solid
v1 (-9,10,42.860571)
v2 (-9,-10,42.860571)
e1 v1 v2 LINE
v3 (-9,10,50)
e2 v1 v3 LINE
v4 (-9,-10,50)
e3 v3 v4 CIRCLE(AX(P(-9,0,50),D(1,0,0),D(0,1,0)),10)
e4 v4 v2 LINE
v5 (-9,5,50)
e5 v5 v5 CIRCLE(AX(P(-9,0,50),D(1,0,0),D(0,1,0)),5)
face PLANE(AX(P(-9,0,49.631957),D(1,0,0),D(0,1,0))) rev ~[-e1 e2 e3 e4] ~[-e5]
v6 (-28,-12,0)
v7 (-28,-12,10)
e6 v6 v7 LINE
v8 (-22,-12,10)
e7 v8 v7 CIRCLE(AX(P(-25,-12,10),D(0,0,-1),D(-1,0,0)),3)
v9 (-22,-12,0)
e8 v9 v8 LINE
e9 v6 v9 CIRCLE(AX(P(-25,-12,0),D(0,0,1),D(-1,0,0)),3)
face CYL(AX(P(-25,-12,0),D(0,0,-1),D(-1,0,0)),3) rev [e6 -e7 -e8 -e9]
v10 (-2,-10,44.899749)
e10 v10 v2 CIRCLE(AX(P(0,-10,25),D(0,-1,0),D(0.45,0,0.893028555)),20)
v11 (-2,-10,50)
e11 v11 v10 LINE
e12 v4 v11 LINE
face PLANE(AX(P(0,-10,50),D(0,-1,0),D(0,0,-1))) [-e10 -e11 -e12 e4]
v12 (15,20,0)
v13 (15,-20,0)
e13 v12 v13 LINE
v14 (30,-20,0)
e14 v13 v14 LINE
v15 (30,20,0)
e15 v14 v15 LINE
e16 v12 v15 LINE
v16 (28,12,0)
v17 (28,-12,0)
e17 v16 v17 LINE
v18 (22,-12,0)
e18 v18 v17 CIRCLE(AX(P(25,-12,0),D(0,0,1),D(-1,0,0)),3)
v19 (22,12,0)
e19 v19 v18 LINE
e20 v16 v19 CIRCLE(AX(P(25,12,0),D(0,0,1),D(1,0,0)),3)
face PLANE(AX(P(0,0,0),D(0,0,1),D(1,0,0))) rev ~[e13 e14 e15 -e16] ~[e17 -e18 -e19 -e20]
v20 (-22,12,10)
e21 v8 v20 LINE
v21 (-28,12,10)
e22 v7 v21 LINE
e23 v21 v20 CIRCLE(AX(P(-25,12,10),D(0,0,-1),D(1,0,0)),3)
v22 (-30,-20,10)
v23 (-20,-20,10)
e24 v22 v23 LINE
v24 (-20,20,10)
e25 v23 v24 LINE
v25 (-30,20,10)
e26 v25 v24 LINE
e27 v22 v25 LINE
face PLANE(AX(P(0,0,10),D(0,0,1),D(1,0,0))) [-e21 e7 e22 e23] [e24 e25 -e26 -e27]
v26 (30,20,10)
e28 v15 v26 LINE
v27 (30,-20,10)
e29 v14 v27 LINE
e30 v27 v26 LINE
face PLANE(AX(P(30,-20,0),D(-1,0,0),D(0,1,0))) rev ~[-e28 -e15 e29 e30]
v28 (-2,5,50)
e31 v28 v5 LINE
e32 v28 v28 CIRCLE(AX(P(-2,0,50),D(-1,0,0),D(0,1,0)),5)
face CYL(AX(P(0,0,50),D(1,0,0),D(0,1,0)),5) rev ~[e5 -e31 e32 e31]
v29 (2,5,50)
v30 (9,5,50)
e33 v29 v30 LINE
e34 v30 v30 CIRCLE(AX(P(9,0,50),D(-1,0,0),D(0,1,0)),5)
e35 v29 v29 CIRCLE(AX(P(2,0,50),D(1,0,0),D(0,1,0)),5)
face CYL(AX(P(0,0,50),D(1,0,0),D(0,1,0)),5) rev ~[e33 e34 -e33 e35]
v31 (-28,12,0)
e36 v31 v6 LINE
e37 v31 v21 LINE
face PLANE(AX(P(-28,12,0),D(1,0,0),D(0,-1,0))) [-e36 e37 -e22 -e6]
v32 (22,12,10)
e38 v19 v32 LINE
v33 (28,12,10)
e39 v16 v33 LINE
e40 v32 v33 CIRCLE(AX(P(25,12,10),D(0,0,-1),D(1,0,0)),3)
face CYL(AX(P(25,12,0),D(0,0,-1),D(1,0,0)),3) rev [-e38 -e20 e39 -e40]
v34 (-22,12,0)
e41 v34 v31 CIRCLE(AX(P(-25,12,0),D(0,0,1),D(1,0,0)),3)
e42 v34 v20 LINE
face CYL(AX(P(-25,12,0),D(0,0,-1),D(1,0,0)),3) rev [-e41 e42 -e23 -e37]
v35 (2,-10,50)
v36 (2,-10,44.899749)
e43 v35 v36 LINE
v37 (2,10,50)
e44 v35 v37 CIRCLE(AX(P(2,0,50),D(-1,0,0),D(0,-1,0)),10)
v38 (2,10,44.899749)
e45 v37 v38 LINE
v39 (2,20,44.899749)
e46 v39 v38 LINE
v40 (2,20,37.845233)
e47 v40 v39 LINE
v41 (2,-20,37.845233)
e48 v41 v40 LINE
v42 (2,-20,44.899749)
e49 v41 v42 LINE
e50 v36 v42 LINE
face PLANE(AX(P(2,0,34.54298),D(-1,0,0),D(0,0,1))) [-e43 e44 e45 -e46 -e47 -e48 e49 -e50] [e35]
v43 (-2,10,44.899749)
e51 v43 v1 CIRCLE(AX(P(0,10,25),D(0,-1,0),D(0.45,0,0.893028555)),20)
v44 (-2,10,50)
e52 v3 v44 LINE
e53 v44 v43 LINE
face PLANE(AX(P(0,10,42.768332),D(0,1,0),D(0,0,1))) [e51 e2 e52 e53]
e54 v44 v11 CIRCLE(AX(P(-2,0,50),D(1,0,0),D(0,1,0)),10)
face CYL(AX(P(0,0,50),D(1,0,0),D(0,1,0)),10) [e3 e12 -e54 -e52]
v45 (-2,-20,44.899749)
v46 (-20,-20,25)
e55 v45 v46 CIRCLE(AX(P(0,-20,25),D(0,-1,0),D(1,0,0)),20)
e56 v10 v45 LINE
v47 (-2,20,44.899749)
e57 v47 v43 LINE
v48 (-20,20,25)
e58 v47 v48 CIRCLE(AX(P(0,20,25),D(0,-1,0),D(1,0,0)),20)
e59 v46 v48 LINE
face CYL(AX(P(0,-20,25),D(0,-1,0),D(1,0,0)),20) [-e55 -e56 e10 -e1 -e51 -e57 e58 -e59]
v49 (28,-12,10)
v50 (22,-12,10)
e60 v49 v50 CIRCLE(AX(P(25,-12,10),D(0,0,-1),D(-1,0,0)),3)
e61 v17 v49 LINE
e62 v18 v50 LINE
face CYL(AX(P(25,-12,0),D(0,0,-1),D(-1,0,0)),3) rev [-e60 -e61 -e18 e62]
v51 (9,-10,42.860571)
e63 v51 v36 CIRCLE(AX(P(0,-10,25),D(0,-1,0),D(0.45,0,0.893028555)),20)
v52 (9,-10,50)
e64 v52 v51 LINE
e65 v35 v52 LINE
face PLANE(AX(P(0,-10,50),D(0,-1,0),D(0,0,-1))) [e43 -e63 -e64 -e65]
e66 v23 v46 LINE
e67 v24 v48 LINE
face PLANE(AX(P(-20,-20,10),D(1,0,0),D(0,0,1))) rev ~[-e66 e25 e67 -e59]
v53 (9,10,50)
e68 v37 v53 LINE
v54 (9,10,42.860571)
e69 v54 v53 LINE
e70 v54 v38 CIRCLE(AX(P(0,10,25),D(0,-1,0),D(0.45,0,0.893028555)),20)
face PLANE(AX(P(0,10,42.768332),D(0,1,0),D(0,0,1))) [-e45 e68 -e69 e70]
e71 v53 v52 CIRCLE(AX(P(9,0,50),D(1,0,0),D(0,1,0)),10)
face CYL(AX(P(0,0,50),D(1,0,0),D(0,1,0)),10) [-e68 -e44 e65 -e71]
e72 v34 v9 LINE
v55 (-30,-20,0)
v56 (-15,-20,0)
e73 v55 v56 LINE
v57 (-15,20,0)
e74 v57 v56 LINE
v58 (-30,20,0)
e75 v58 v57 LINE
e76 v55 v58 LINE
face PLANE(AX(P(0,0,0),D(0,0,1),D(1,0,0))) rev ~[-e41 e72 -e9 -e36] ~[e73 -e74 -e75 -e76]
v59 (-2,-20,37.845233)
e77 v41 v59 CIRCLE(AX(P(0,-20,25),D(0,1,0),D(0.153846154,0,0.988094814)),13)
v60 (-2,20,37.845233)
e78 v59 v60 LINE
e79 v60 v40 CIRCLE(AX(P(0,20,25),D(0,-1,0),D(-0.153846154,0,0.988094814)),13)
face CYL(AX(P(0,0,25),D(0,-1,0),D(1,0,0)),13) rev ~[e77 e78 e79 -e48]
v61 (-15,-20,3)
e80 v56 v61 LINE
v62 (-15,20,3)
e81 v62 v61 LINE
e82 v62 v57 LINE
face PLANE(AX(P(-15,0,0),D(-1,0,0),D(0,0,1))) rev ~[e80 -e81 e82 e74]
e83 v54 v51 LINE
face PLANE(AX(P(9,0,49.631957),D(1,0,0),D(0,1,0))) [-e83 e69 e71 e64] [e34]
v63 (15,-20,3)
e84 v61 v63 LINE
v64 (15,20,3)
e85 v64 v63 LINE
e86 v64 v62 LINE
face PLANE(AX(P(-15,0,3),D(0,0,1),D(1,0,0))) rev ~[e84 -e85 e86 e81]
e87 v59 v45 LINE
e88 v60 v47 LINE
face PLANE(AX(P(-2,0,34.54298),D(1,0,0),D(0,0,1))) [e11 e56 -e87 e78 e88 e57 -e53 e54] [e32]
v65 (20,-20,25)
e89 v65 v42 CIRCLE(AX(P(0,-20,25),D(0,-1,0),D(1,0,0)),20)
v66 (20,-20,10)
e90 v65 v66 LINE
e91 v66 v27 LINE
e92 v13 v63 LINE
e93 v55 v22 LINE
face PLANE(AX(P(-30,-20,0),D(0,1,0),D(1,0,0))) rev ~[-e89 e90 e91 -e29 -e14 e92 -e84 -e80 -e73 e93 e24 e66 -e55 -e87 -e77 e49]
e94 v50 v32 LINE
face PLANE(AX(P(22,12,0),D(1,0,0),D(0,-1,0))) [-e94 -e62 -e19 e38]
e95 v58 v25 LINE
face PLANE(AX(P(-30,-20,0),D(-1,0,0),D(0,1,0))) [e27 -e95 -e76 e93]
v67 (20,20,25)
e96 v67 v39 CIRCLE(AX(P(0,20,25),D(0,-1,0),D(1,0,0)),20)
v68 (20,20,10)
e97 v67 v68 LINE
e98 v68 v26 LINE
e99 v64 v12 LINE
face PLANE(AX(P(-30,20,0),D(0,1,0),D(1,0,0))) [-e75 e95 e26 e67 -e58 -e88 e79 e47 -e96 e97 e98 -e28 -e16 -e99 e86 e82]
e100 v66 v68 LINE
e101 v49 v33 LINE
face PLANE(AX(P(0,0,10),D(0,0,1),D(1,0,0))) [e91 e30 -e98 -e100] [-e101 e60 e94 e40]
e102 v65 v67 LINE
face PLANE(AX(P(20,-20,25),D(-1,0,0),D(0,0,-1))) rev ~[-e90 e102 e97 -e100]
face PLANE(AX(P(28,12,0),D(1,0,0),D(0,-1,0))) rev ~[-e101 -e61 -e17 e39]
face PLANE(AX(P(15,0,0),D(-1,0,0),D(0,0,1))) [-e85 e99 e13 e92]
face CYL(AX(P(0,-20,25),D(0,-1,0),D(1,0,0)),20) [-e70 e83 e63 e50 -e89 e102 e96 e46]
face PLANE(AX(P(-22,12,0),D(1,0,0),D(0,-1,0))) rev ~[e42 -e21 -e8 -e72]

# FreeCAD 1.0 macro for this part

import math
import FreeCAD as App
import Part
import Sketcher

V = App.Vector

doc = App.newDocument("Part")
body = doc.addObject("PartDesign::Body", "Body")

sketch1 = doc.addObject("Sketcher::SketchObject", "Sketch")
body.addObject(sketch1)
sketch1.AttachmentSupport = (doc.XY_Plane, [""])
sketch1.MapMode = "FlatFace"
sketch1.addGeometry([
    Part.LineSegment(V(-30, 20, 0), V(-30, -20, 0)),
    Part.LineSegment(V(-30, -20, 0), V(30, -20, 0)),
    Part.LineSegment(V(30, -20, 0), V(30, 20, 0)),
    Part.LineSegment(V(30, 20, 0), V(-30, 20, 0)),
], False)
sketch1.addConstraint([
    Sketcher.Constraint("Coincident", 0, 2, 1, 1),
    Sketcher.Constraint("Coincident", 1, 2, 2, 1),
    Sketcher.Constraint("Coincident", 2, 2, 3, 1),
    Sketcher.Constraint("Coincident", 3, 2, 0, 1),
    Sketcher.Constraint("Vertical", 0),
    Sketcher.Constraint("Horizontal", 1),
    Sketcher.Constraint("Vertical", 2),
    Sketcher.Constraint("Horizontal", 3),
    Sketcher.Constraint("Symmetric", 0, 2, 2, 2, -1, 1),
    Sketcher.Constraint("DistanceX", 1, 1, 1, 2, 60.0),
    Sketcher.Constraint("DistanceY", 0, 2, 0, 1, 40.0),
])
pad1 = doc.addObject("PartDesign::Pad", "Pad")
body.addObject(pad1)
pad1.Profile = sketch1
pad1.Length = 10

sketch2 = doc.addObject("Sketcher::SketchObject", "Sketch001")
body.addObject(sketch2)
sketch2.AttachmentSupport = (doc.XZ_Plane, [""])
sketch2.MapMode = "FlatFace"
sketch2.AttachmentOffset = App.Placement(V(0, 0, 20), App.Rotation())
sketch2.addGeometry([
    Part.LineSegment(V(-20, 25, 0), V(-20, 10, 0)),
    Part.LineSegment(V(-20, 10, 0), V(20, 10, 0)),
    Part.LineSegment(V(20, 10, 0), V(20, 25, 0)),
    Part.ArcOfCircle(Part.Circle(V(0, 25, 0), V(0, 0, 1), 20), math.radians(0), math.radians(180)),
], False)
sketch2.addConstraint([
    Sketcher.Constraint("Coincident", 0, 2, 1, 1),
    Sketcher.Constraint("Coincident", 1, 2, 2, 1),
    Sketcher.Constraint("Tangent", 2, 2, 3, 1),
    Sketcher.Constraint("Tangent", 3, 2, 0, 1),
    Sketcher.Constraint("Vertical", 0),
    Sketcher.Constraint("Horizontal", 1),
    Sketcher.Constraint("Vertical", 2),
    Sketcher.Constraint("PointOnObject", 3, 3, -2),
    Sketcher.Constraint("Radius", 3, 20.0),
    Sketcher.Constraint("DistanceY", 0, 2, 0, 1, 15.0),
    Sketcher.Constraint("DistanceY", -1, 1, 3, 3, 25.0),
])
pad2 = doc.addObject("PartDesign::Pad", "Pad001")
body.addObject(pad2)
pad2.Profile = sketch2
pad2.Length = 40
pad2.Reversed = True

sketch3 = doc.addObject("Sketcher::SketchObject", "Sketch002")
body.addObject(sketch3)
sketch3.AttachmentSupport = (doc.YZ_Plane, [""])
sketch3.MapMode = "FlatFace"
sketch3.addGeometry([
    Part.LineSegment(V(10, 42.768332, 0), V(10, 50, 0)),
    Part.ArcOfCircle(Part.Circle(V(0, 50, 0), V(0, 0, 1), 10), math.radians(0), math.radians(180)),
    Part.LineSegment(V(-10, 50, 0), V(-10, 42.768332, 0)),
    Part.LineSegment(V(-10, 42.768332, 0), V(10, 42.768332, 0)),
], False)
sketch3.addConstraint([
    Sketcher.Constraint("Tangent", 0, 2, 1, 1),
    Sketcher.Constraint("Tangent", 1, 2, 2, 1),
    Sketcher.Constraint("Coincident", 2, 2, 3, 1),
    Sketcher.Constraint("Coincident", 3, 2, 0, 1),
    Sketcher.Constraint("Vertical", 0),
    Sketcher.Constraint("Vertical", 2),
    Sketcher.Constraint("Horizontal", 3),
    Sketcher.Constraint("PointOnObject", 1, 3, -2),
    Sketcher.Constraint("Radius", 1, 10.0),
    Sketcher.Constraint("DistanceY", -1, 1, 1, 3, 50.0),
    Sketcher.Constraint("DistanceY", 0, 1, 0, 2, 7.231668),
])
pad3 = doc.addObject("PartDesign::Pad", "Pad002")
body.addObject(pad3)
pad3.Profile = sketch3
pad3.Type = "TwoLengths"
pad3.Length = 9
pad3.Length2 = 9

sketch4 = doc.addObject("Sketcher::SketchObject", "Sketch003")
body.addObject(sketch4)
sketch4.AttachmentSupport = (doc.YZ_Plane, [""])
sketch4.MapMode = "FlatFace"
sketch4.addGeometry(Part.Circle(V(0, 50, 0), V(0, 0, 1), 5), False)
sketch4.addConstraint([
    Sketcher.Constraint("PointOnObject", 0, 3, -2),
    Sketcher.Constraint("Diameter", 0, 10.0),
    Sketcher.Constraint("DistanceY", -1, 1, 0, 3, 50.0),
])
pocket1 = doc.addObject("PartDesign::Pocket", "Pocket")
body.addObject(pocket1)
pocket1.Profile = sketch4
pocket1.Type = "ThroughAll"
pocket1.Midplane = True

sketch5 = doc.addObject("Sketcher::SketchObject", "Sketch004")
body.addObject(sketch5)
sketch5.AttachmentSupport = (doc.XZ_Plane, [""])
sketch5.MapMode = "FlatFace"
sketch5.addGeometry(Part.Circle(V(0, 25, 0), V(0, 0, 1), 13), False)
sketch5.addConstraint([
    Sketcher.Constraint("PointOnObject", 0, 3, -2),
    Sketcher.Constraint("Diameter", 0, 26.0),
    Sketcher.Constraint("DistanceY", -1, 1, 0, 3, 25.0),
])
pocket2 = doc.addObject("PartDesign::Pocket", "Pocket001")
body.addObject(pocket2)
pocket2.Profile = sketch5
pocket2.Type = "ThroughAll"
pocket2.Midplane = True

sketch6 = doc.addObject("Sketcher::SketchObject", "Sketch005")
body.addObject(sketch6)
sketch6.AttachmentSupport = (doc.XZ_Plane, [""])
sketch6.MapMode = "FlatFace"
sketch6.addGeometry([
    Part.LineSegment(V(-2, 64.147194, 0), V(-2, 34.54298, 0)),
    Part.LineSegment(V(-2, 34.54298, 0), V(2, 34.54298, 0)),
    Part.LineSegment(V(2, 34.54298, 0), V(2, 64.147194, 0)),
    Part.LineSegment(V(2, 64.147194, 0), V(-2, 64.147194, 0)),
], False)
sketch6.addConstraint([
    Sketcher.Constraint("Coincident", 0, 2, 1, 1),
    Sketcher.Constraint("Coincident", 1, 2, 2, 1),
    Sketcher.Constraint("Coincident", 2, 2, 3, 1),
    Sketcher.Constraint("Coincident", 3, 2, 0, 1),
    Sketcher.Constraint("Vertical", 0),
    Sketcher.Constraint("Horizontal", 1),
    Sketcher.Constraint("Vertical", 2),
    Sketcher.Constraint("Horizontal", 3),
    Sketcher.Constraint("DistanceX", 1, 1, 1, 2, 4.0),
    Sketcher.Constraint("DistanceX", 0, 2, -1, 1, 2.0),
    Sketcher.Constraint("DistanceY", 0, 2, 0, 1, 29.604214),
    Sketcher.Constraint("DistanceY", -1, 1, 0, 2, 34.54298),
])
pocket3 = doc.addObject("PartDesign::Pocket", "Pocket002")
body.addObject(pocket3)
pocket3.Profile = sketch6
pocket3.Type = "ThroughAll"
pocket3.Midplane = True

sketch7 = doc.addObject("Sketcher::SketchObject", "Sketch006")
body.addObject(sketch7)
sketch7.AttachmentSupport = (doc.XZ_Plane, [""])
sketch7.MapMode = "FlatFace"
sketch7.addGeometry([
    Part.LineSegment(V(-15, 3, 0), V(-15, 0, 0)),
    Part.LineSegment(V(-15, 0, 0), V(15, 0, 0)),
    Part.LineSegment(V(15, 0, 0), V(15, 3, 0)),
    Part.LineSegment(V(15, 3, 0), V(-15, 3, 0)),
], False)
sketch7.addConstraint([
    Sketcher.Constraint("Coincident", 0, 2, 1, 1),
    Sketcher.Constraint("Coincident", 1, 2, 2, 1),
    Sketcher.Constraint("Coincident", 2, 2, 3, 1),
    Sketcher.Constraint("Coincident", 3, 2, 0, 1),
    Sketcher.Constraint("Vertical", 0),
    Sketcher.Constraint("Horizontal", 1),
    Sketcher.Constraint("Vertical", 2),
    Sketcher.Constraint("Horizontal", 3),
    Sketcher.Constraint("Symmetric", 0, 2, 1, 2, -1, 1),
    Sketcher.Constraint("DistanceX", 1, 1, 1, 2, 30.0),
    Sketcher.Constraint("DistanceY", 0, 2, 0, 1, 3.0),
])
pocket4 = doc.addObject("PartDesign::Pocket", "Pocket003")
body.addObject(pocket4)
pocket4.Profile = sketch7
pocket4.Type = "ThroughAll"
pocket4.Midplane = True

sketch8 = doc.addObject("Sketcher::SketchObject", "Sketch007")
body.addObject(sketch8)
sketch8.AttachmentSupport = (doc.XY_Plane, [""])
sketch8.MapMode = "FlatFace"
sketch8.addGeometry([
    Part.ArcOfCircle(Part.Circle(V(-25, 12, 0), V(0, 0, 1), 3), math.radians(0), math.radians(180)),
    Part.LineSegment(V(-28, 12, 0), V(-28, -12, 0)),
    Part.ArcOfCircle(Part.Circle(V(-25, -12, 0), V(0, 0, 1), 3), math.radians(180), math.radians(360)),
    Part.LineSegment(V(-22, -12, 0), V(-22, 12, 0)),
], False)
sketch8.addConstraint([
    Sketcher.Constraint("Tangent", 0, 2, 1, 1),
    Sketcher.Constraint("Tangent", 1, 2, 2, 1),
    Sketcher.Constraint("Tangent", 2, 2, 3, 1),
    Sketcher.Constraint("Tangent", 3, 2, 0, 1),
    Sketcher.Constraint("Vertical", 1),
    Sketcher.Constraint("Vertical", 3),
    Sketcher.Constraint("Radius", 0, 3.0),
    Sketcher.Constraint("DistanceY", 1, 2, 1, 1, 24.0),
    Sketcher.Constraint("DistanceX", 0, 3, -1, 1, 25.0),
    Sketcher.Constraint("DistanceY", -1, 1, 0, 3, 12.0),
])
pocket5 = doc.addObject("PartDesign::Pocket", "Pocket004")
body.addObject(pocket5)
pocket5.Profile = sketch8
pocket5.Type = "ThroughAll"
pocket5.Midplane = True

sketch9 = doc.addObject("Sketcher::SketchObject", "Sketch008")
body.addObject(sketch9)
sketch9.AttachmentSupport = (doc.XY_Plane, [""])
sketch9.MapMode = "FlatFace"
sketch9.addGeometry([
    Part.ArcOfCircle(Part.Circle(V(25, 12, 0), V(0, 0, 1), 3), math.radians(0), math.radians(180)),
    Part.LineSegment(V(22, 12, 0), V(22, -12, 0)),
    Part.ArcOfCircle(Part.Circle(V(25, -12, 0), V(0, 0, 1), 3), math.radians(180), math.radians(360)),
    Part.LineSegment(V(28, -12, 0), V(28, 12, 0)),
], False)
sketch9.addConstraint([
    Sketcher.Constraint("Tangent", 0, 2, 1, 1),
    Sketcher.Constraint("Tangent", 1, 2, 2, 1),
    Sketcher.Constraint("Tangent", 2, 2, 3, 1),
    Sketcher.Constraint("Tangent", 3, 2, 0, 1),
    Sketcher.Constraint("Vertical", 1),
    Sketcher.Constraint("Vertical", 3),
    Sketcher.Constraint("Radius", 0, 3.0),
    Sketcher.Constraint("DistanceY", 1, 2, 1, 1, 24.0),
    Sketcher.Constraint("DistanceX", -1, 1, 0, 3, 25.0),
    Sketcher.Constraint("DistanceY", -1, 1, 0, 3, 12.0),
])
pocket6 = doc.addObject("PartDesign::Pocket", "Pocket005")
body.addObject(pocket6)
pocket6.Profile = sketch9
pocket6.Type = "ThroughAll"
pocket6.Midplane = True

doc.recompute()
